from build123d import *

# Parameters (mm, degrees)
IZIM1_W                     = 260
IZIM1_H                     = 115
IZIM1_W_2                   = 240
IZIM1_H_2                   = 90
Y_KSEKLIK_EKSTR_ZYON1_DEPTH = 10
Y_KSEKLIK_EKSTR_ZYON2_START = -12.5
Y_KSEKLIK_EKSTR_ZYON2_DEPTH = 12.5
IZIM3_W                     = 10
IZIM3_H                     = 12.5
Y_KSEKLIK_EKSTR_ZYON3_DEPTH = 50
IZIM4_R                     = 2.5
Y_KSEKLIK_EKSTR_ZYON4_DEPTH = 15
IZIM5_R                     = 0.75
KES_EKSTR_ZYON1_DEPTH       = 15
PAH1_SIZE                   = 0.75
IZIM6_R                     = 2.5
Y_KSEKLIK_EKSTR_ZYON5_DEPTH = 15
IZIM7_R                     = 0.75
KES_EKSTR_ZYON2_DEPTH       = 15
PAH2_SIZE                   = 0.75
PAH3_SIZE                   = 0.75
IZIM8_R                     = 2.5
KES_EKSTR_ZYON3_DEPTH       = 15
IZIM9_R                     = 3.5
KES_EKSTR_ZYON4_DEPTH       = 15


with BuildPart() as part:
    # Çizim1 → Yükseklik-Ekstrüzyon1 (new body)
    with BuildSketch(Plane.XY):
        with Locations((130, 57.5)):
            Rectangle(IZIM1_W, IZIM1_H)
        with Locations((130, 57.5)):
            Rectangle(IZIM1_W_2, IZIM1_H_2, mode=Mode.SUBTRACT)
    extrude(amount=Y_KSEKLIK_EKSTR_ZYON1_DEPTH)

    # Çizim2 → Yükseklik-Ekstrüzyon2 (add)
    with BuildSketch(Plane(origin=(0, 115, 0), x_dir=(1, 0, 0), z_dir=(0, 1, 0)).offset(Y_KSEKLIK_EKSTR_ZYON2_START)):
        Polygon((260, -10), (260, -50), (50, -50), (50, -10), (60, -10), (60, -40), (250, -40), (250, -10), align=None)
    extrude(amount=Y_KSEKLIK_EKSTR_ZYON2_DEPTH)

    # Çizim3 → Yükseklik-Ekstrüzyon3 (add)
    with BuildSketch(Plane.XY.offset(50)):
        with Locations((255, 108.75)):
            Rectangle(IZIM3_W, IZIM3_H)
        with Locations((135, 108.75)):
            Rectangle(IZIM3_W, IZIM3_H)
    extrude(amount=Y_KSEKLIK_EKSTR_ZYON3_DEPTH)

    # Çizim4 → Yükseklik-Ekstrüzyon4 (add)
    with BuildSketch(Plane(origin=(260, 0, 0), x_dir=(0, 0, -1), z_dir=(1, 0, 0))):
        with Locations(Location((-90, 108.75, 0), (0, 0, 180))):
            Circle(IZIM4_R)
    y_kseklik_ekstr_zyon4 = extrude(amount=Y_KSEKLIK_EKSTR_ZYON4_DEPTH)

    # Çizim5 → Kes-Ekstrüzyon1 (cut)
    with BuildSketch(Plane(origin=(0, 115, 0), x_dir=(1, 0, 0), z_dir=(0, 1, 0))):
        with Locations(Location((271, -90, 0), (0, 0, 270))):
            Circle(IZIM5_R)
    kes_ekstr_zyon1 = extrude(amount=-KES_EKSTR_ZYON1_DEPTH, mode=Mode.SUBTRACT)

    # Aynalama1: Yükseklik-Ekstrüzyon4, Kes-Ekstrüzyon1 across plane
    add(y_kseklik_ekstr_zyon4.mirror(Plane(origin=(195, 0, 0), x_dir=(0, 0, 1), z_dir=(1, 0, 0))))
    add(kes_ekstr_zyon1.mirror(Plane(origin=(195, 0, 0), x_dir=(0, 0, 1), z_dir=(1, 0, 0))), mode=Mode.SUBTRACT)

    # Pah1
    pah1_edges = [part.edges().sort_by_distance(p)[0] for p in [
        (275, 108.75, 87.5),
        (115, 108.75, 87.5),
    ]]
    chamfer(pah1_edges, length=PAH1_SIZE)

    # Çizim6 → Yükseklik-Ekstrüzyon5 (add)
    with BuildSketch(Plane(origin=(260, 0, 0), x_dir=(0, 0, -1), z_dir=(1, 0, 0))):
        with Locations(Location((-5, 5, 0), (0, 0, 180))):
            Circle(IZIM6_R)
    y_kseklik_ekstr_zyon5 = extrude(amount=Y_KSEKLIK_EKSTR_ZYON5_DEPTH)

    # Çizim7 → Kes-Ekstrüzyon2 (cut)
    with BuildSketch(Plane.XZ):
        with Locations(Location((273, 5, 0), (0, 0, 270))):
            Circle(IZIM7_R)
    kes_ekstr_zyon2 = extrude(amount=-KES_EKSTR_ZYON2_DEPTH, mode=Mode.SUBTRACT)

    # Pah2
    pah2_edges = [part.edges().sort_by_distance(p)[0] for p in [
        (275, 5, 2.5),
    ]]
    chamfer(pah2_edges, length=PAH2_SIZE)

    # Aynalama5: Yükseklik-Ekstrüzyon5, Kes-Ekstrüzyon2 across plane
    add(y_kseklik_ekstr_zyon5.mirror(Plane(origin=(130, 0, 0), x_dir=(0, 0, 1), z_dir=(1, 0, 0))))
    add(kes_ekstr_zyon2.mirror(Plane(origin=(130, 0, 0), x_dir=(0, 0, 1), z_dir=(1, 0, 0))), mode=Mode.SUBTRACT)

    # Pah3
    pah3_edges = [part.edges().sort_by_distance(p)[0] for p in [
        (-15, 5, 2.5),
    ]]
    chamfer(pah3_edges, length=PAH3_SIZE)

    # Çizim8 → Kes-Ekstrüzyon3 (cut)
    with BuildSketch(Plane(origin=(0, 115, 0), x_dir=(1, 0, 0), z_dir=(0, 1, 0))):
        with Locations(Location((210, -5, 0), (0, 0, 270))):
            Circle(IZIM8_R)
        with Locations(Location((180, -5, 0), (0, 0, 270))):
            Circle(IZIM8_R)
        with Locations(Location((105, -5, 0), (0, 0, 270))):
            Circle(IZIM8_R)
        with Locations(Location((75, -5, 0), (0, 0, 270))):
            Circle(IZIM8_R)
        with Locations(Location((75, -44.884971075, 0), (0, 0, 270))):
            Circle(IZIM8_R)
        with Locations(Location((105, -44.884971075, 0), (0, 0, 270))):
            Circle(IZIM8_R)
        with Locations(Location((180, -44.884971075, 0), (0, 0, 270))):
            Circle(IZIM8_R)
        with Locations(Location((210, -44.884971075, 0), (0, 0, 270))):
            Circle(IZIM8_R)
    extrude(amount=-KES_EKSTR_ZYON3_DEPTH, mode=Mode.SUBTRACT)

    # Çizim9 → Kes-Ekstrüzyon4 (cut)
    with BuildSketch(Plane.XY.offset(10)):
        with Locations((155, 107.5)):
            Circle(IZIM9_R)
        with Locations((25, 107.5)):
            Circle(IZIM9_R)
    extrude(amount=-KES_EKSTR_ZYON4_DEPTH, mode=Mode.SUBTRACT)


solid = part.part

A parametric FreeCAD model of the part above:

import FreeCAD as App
import Part
import Sketcher
from FreeCAD import Vector


def edges_at(feature, points):
    """Names of the edges that pass closest to the given points."""
    edges = feature.Shape.Edges
    near = lambda p: min(range(len(edges)), key=lambda i: edges[i].distToShape(Part.Vertex(*p))[0])
    return sorted({f"Edge{near(p) + 1}" for p in points})

doc = App.newDocument("Part")
body = doc.addObject("PartDesign::Body", "Body")

# Sketch on XY plane
sketch1 = body.newObject("Sketcher::SketchObject", "Sketch")
sketch1.AttachmentSupport = (doc.getObject("XY_Plane"), [""])
sketch1.MapMode = "FlatFace"
sketch1.addGeometry([
    Part.LineSegment(Vector(0, 115, 0), Vector(0, 0, 0)),  # 0
    Part.LineSegment(Vector(0, 0, 0), Vector(260, 0, 0)),  # 1
    Part.LineSegment(Vector(260, 0, 0), Vector(260, 115, 0)),  # 2
    Part.LineSegment(Vector(260, 115, 0), Vector(0, 115, 0)),  # 3
    Part.LineSegment(Vector(250, 12, 0), Vector(10, 12, 0)),  # 4
    Part.LineSegment(Vector(10, 12, 0), Vector(10, 102, 0)),  # 5
    Part.LineSegment(Vector(10, 102, 0), Vector(250, 102, 0)),  # 6
    Part.LineSegment(Vector(250, 102, 0), Vector(250, 12, 0)),  # 7
], False)
sketch1.addConstraint([
    Sketcher.Constraint("Coincident", 0, 2, 1, 1),
    Sketcher.Constraint("Coincident", 1, 2, 2, 1),
    Sketcher.Constraint("Coincident", 2, 2, 3, 1),
    Sketcher.Constraint("Coincident", 3, 2, 0, 1),
    Sketcher.Constraint("Coincident", 4, 2, 5, 1),
    Sketcher.Constraint("Coincident", 5, 2, 6, 1),
    Sketcher.Constraint("Coincident", 6, 2, 7, 1),
    Sketcher.Constraint("Coincident", 7, 2, 4, 1),
    Sketcher.Constraint("Vertical", 0),
    Sketcher.Constraint("Horizontal", 1),
    Sketcher.Constraint("Vertical", 2),
    Sketcher.Constraint("Horizontal", 3),
    Sketcher.Constraint("Horizontal", 4),
    Sketcher.Constraint("Vertical", 5),
    Sketcher.Constraint("Horizontal", 6),
    Sketcher.Constraint("Vertical", 7),
    Sketcher.Constraint("Coincident", 0, 2, -1, 1),
    Sketcher.Constraint("DistanceX", 1, 1, 1, 2, 260.0),
    Sketcher.Constraint("DistanceX", 4, 2, 4, 1, 240.0),
    Sketcher.Constraint("DistanceY", 0, 2, 0, 1, 115.0),
    Sketcher.Constraint("DistanceY", 5, 1, 5, 2, 90.0),
    Sketcher.Constraint("DistanceX", -1, 1, 4, 2, 10.0),
    Sketcher.Constraint("DistanceY", -1, 1, 4, 2, 12.5),
])
pad1 = body.newObject("PartDesign::Pad", "Pad")
pad1.Profile = sketch1
pad1.Length = 10

# Sketch on XZ plane
sketch2 = body.newObject("Sketcher::SketchObject", "Sketch001")
sketch2.AttachmentSupport = (doc.getObject("XZ_Plane"), [""])
sketch2.MapMode = "FlatFace"
sketch2.AttachmentOffset = App.Placement(Vector(0, 0, -102.5), App.Rotation())
sketch2.addGeometry([
    Part.LineSegment(Vector(260, 50, 0), Vector(260, 10, 0)),  # 0
    Part.LineSegment(Vector(260, 10, 0), Vector(250, 10, 0)),  # 1
    Part.LineSegment(Vector(250, 10, 0), Vector(250, 40, 0)),  # 2
    Part.LineSegment(Vector(250, 40, 0), Vector(60, 40, 0)),  # 3
    Part.LineSegment(Vector(60, 40, 0), Vector(60, 10, 0)),  # 4
    Part.LineSegment(Vector(60, 10, 0), Vector(50, 10, 0)),  # 5
    Part.LineSegment(Vector(50, 10, 0), Vector(50, 50, 0)),  # 6
    Part.LineSegment(Vector(50, 50, 0), Vector(260, 50, 0)),  # 7
], False)
sketch2.addConstraint([
    Sketcher.Constraint("Coincident", 0, 2, 1, 1),
    Sketcher.Constraint("Coincident", 1, 2, 2, 1),
    Sketcher.Constraint("Coincident", 2, 2, 3, 1),
    Sketcher.Constraint("Coincident", 3, 2, 4, 1),
    Sketcher.Constraint("Coincident", 4, 2, 5, 1),
    Sketcher.Constraint("Coincident", 5, 2, 6, 1),
    Sketcher.Constraint("Coincident", 6, 2, 7, 1),
    Sketcher.Constraint("Coincident", 7, 2, 0, 1),
    Sketcher.Constraint("Vertical", 0),
    Sketcher.Constraint("Horizontal", 1),
    Sketcher.Constraint("Vertical", 2),
    Sketcher.Constraint("Horizontal", 3),
    Sketcher.Constraint("Vertical", 4),
    Sketcher.Constraint("Horizontal", 5),
    Sketcher.Constraint("Vertical", 6),
    Sketcher.Constraint("Horizontal", 7),
    Sketcher.Constraint("Horizontal", 1, 2, 4, 2),
    Sketcher.Constraint("Equal", 1, 5),
    Sketcher.Constraint("DistanceX", 1, 2, 1, 1, 10.0),
    Sketcher.Constraint("DistanceX", 3, 2, 3, 1, 190.0),
    Sketcher.Constraint("DistanceY", 0, 2, 0, 1, 40.0),
    Sketcher.Constraint("DistanceY", 2, 1, 2, 2, 30.0),
    Sketcher.Constraint("DistanceX", -1, 1, 0, 2, 260.0),
    Sketcher.Constraint("DistanceY", -1, 1, 0, 2, 10.0),
])
pad2 = body.newObject("PartDesign::Pad", "Pad001")
pad2.Profile = sketch2
pad2.Length = 12.5
pad2.Reversed = True

# Sketch on XY plane
sketch3 = body.newObject("Sketcher::SketchObject", "Sketch002")
sketch3.AttachmentSupport = (doc.getObject("XY_Plane"), [""])
sketch3.MapMode = "FlatFace"
sketch3.AttachmentOffset = App.Placement(Vector(0, 0, 50), App.Rotation())
sketch3.addGeometry([
    Part.LineSegment(Vector(250, 115, 0), Vector(250, 102, 0)),  # 0
    Part.LineSegment(Vector(250, 102, 0), Vector(260, 102, 0)),  # 1
    Part.LineSegment(Vector(260, 102, 0), Vector(260, 115, 0)),  # 2
    Part.LineSegment(Vector(260, 115, 0), Vector(250, 115, 0)),  # 3
    Part.LineSegment(Vector(130, 115, 0), Vector(130, 102, 0)),  # 4
    Part.LineSegment(Vector(130, 102, 0), Vector(140, 102, 0)),  # 5
    Part.LineSegment(Vector(140, 102, 0), Vector(140, 115, 0)),  # 6
    Part.LineSegment(Vector(140, 115, 0), Vector(130, 115, 0)),  # 7
], False)
sketch3.addConstraint([
    Sketcher.Constraint("Coincident", 0, 2, 1, 1),
    Sketcher.Constraint("Coincident", 1, 2, 2, 1),
    Sketcher.Constraint("Coincident", 2, 2, 3, 1),
    Sketcher.Constraint("Coincident", 3, 2, 0, 1),
    Sketcher.Constraint("Coincident", 4, 2, 5, 1),
    Sketcher.Constraint("Coincident", 5, 2, 6, 1),
    Sketcher.Constraint("Coincident", 6, 2, 7, 1),
    Sketcher.Constraint("Coincident", 7, 2, 4, 1),
    Sketcher.Constraint("Vertical", 0),
    Sketcher.Constraint("Horizontal", 1),
    Sketcher.Constraint("Vertical", 2),
    Sketcher.Constraint("Horizontal", 3),
    Sketcher.Constraint("Vertical", 4),
    Sketcher.Constraint("Horizontal", 5),
    Sketcher.Constraint("Vertical", 6),
    Sketcher.Constraint("Horizontal", 7),
    Sketcher.Constraint("Horizontal", 1, 2, 4, 2),
    Sketcher.Constraint("Horizontal", 3, 2, 6, 2),
    Sketcher.Constraint("Equal", 3, 5),
    Sketcher.Constraint("DistanceX", 1, 1, 1, 2, 10.0),
    Sketcher.Constraint("DistanceY", 0, 2, 0, 1, 12.5),
    Sketcher.Constraint("DistanceX", -1, 1, 0, 2, 250.0),
    Sketcher.Constraint("DistanceY", -1, 1, 2, 2, 115.0),
    Sketcher.Constraint("DistanceX", -1, 1, 4, 2, 130.0),
])
pad3 = body.newObject("PartDesign::Pad", "Pad002")
pad3.Profile = sketch3
pad3.Length = 50

# Sketch on YZ plane
sketch4 = body.newObject("Sketcher::SketchObject", "Sketch003")
sketch4.AttachmentSupport = (doc.getObject("YZ_Plane"), [""])
sketch4.MapMode = "FlatFace"
sketch4.AttachmentOffset = App.Placement(Vector(0, 0, 260), App.Rotation())
sketch4.addGeometry(Part.Circle(Vector(108.8, 90, 0), Vector(0, 0, 1), 2.5), False)
sketch4.addConstraint([
    Sketcher.Constraint("Diameter", 0, 5.0),
    Sketcher.Constraint("DistanceY", -1, 1, 0, 3, 90.0),
    Sketcher.Constraint("DistanceX", -1, 1, 0, 3, 108.75),
])
pad4 = body.newObject("PartDesign::Pad", "Pad003")
pad4.Profile = sketch4
pad4.Length = 15

# Sketch on XZ plane
sketch5 = body.newObject("Sketcher::SketchObject", "Sketch004")
sketch5.AttachmentSupport = (doc.getObject("XZ_Plane"), [""])
sketch5.MapMode = "FlatFace"
sketch5.AttachmentOffset = App.Placement(Vector(0, 0, -115), App.Rotation())
sketch5.addGeometry(Part.Circle(Vector(271, 90, 0), Vector(0, 0, 1), 0.8), False)
sketch5.addConstraint([
    Sketcher.Constraint("Diameter", 0, 1.5),
    Sketcher.Constraint("DistanceX", -1, 1, 0, 3, 271.0),
    Sketcher.Constraint("DistanceY", -1, 1, 0, 3, 90.0),
])
pocket1 = body.newObject("PartDesign::Pocket", "Pocket")
pocket1.Profile = sketch5
pocket1.Length = 15
pocket1.Reversed = True
doc.recompute()

datumplane = body.newObject("PartDesign::Plane", "DatumPlane")
datumplane.AttachmentSupport = (doc.getObject("YZ_Plane"), [""])
datumplane.MapMode = "FlatFace"
datumplane.AttachmentOffset = App.Placement(Vector(0, 0, 195), App.Rotation())
mirrored = body.newObject("PartDesign::Mirrored", "Mirrored")
mirrored.Originals = [pad4, pocket1]
mirrored.MirrorPlane = (datumplane, [""])
body.Tip = mirrored
doc.recompute()

chamfer = body.newObject("PartDesign::Chamfer", "Chamfer")
chamfer.Base = (mirrored, edges_at(mirrored, [(275, 108.75, 87.5), (115, 108.75, 87.5)]))
chamfer.Size = 0.75

# Sketch on YZ plane
sketch6 = body.newObject("Sketcher::SketchObject", "Sketch005")
sketch6.AttachmentSupport = (doc.getObject("YZ_Plane"), [""])
sketch6.MapMode = "FlatFace"
sketch6.AttachmentOffset = App.Placement(Vector(0, 0, 260), App.Rotation())
sketch6.addGeometry(Part.Circle(Vector(5, 5, 0), Vector(0, 0, 1), 2.5), False)
sketch6.addConstraint([
    Sketcher.Constraint("Diameter", 0, 5.0),
    Sketcher.Constraint("DistanceX", -1, 1, 0, 3, 5.0),
    Sketcher.Constraint("DistanceY", -1, 1, 0, 3, 5.0),
])
pad5 = body.newObject("PartDesign::Pad", "Pad004")
pad5.Profile = sketch6
pad5.Length = 15

# Sketch on XZ plane
sketch7 = body.newObject("Sketcher::SketchObject", "Sketch006")
sketch7.AttachmentSupport = (doc.getObject("XZ_Plane"), [""])
sketch7.MapMode = "FlatFace"
sketch7.addGeometry(Part.Circle(Vector(273, 5, 0), Vector(0, 0, 1), 0.8), False)
sketch7.addConstraint([
    Sketcher.Constraint("Diameter", 0, 1.5),
    Sketcher.Constraint("DistanceX", -1, 1, 0, 3, 273.0),
    Sketcher.Constraint("DistanceY", -1, 1, 0, 3, 5.0),
])
pocket2 = body.newObject("PartDesign::Pocket", "Pocket001")
pocket2.Profile = sketch7
pocket2.Length = 15
doc.recompute()

chamfer2 = body.newObject("PartDesign::Chamfer", "Chamfer001")
chamfer2.Base = (pocket2, edges_at(pocket2, [(275, 5, 2.5)]))
chamfer2.Size = 0.75
doc.recompute()

datumplane2 = body.newObject("PartDesign::Plane", "DatumPlane001")
datumplane2.AttachmentSupport = (doc.getObject("YZ_Plane"), [""])
datumplane2.MapMode = "FlatFace"
datumplane2.AttachmentOffset = App.Placement(Vector(0, 0, 130), App.Rotation())
mirrored2 = body.newObject("PartDesign::Mirrored", "Mirrored001")
mirrored2.Originals = [pad5, pocket2]
mirrored2.MirrorPlane = (datumplane2, [""])
body.Tip = mirrored2
doc.recompute()

chamfer3 = body.newObject("PartDesign::Chamfer", "Chamfer002")
chamfer3.Base = (mirrored2, edges_at(mirrored2, [(-15, 5, 2.5)]))
chamfer3.Size = 0.75

# Sketch on XZ plane
sketch8 = body.newObject("Sketcher::SketchObject", "Sketch007")
sketch8.AttachmentSupport = (doc.getObject("XZ_Plane"), [""])
sketch8.MapMode = "FlatFace"
sketch8.AttachmentOffset = App.Placement(Vector(0, 0, -115), App.Rotation())
sketch8.addGeometry([
    Part.Circle(Vector(210, 5, 0), Vector(0, 0, 1), 2.5),  # 0
    Part.Circle(Vector(180, 5, 0), Vector(0, 0, 1), 2.5),  # 1
    Part.Circle(Vector(105, 5, 0), Vector(0, 0, 1), 2.5),  # 2
    Part.Circle(Vector(75, 5, 0), Vector(0, 0, 1), 2.5),  # 3
    Part.Circle(Vector(75, 44.9, 0), Vector(0, 0, 1), 2.5),  # 4
    Part.Circle(Vector(105, 44.9, 0), Vector(0, 0, 1), 2.5),  # 5
    Part.Circle(Vector(180, 44.9, 0), Vector(0, 0, 1), 2.5),  # 6
    Part.Circle(Vector(210, 44.9, 0), Vector(0, 0, 1), 2.5),  # 7
], False)
sketch8.addConstraint([
    Sketcher.Constraint("Equal", 0, 1),
    Sketcher.Constraint("Equal", 1, 2),
    Sketcher.Constraint("Equal", 2, 3),
    Sketcher.Constraint("Equal", 3, 4),
    Sketcher.Constraint("Equal", 4, 5),
    Sketcher.Constraint("Equal", 5, 6),
    Sketcher.Constraint("Equal", 6, 7),
    Sketcher.Constraint("Horizontal", 0, 3, 1, 3),
    Sketcher.Constraint("Horizontal", 1, 3, 2, 3),
    Sketcher.Constraint("Horizontal", 2, 3, 3, 3),
    Sketcher.Constraint("Horizontal", 4, 3, 5, 3),
    Sketcher.Constraint("Horizontal", 5, 3, 6, 3),
    Sketcher.Constraint("Horizontal", 6, 3, 7, 3),
    Sketcher.Constraint("Vertical", 3, 3, 4, 3),
    Sketcher.Constraint("Vertical", 2, 3, 5, 3),
    Sketcher.Constraint("Vertical", 1, 3, 6, 3),
    Sketcher.Constraint("Vertical", 0, 3, 7, 3),
    Sketcher.Constraint("Diameter", 0, 5.0),
    Sketcher.Constraint("DistanceX", -1, 1, 0, 3, 210.0),
    Sketcher.Constraint("DistanceY", -1, 1, 0, 3, 5.0),
    Sketcher.Constraint("DistanceX", -1, 1, 1, 3, 180.0),
    Sketcher.Constraint("DistanceX", -1, 1, 2, 3, 105.0),
    Sketcher.Constraint("DistanceX", -1, 1, 3, 3, 75.0),
    Sketcher.Constraint("DistanceY", -1, 1, 4, 3, 44.884971),
])
pocket3 = body.newObject("PartDesign::Pocket", "Pocket002")
pocket3.Profile = sketch8
pocket3.Length = 15
pocket3.Reversed = True

# Sketch on XY plane
sketch9 = body.newObject("Sketcher::SketchObject", "Sketch008")
sketch9.AttachmentSupport = (doc.getObject("XY_Plane"), [""])
sketch9.MapMode = "FlatFace"
sketch9.AttachmentOffset = App.Placement(Vector(0, 0, 10), App.Rotation())
sketch9.addGeometry([
    Part.Circle(Vector(155, 107.5, 0), Vector(0, 0, 1), 3.5),
    Part.Circle(Vector(25, 107.5, 0), Vector(0, 0, 1), 3.5),
], False)
sketch9.addConstraint([
    Sketcher.Constraint("Equal", 0, 1),
    Sketcher.Constraint("Horizontal", 0, 3, 1, 3),
    Sketcher.Constraint("Diameter", 0, 7.0),
    Sketcher.Constraint("DistanceX", -1, 1, 0, 3, 155.0),
    Sketcher.Constraint("DistanceX", -1, 1, 1, 3, 25.0),
    Sketcher.Constraint("DistanceY", -1, 1, 0, 3, 107.5),
])
pocket4 = body.newObject("PartDesign::Pocket", "Pocket003")
pocket4.Profile = sketch9
pocket4.Length = 15

doc.recompute()
